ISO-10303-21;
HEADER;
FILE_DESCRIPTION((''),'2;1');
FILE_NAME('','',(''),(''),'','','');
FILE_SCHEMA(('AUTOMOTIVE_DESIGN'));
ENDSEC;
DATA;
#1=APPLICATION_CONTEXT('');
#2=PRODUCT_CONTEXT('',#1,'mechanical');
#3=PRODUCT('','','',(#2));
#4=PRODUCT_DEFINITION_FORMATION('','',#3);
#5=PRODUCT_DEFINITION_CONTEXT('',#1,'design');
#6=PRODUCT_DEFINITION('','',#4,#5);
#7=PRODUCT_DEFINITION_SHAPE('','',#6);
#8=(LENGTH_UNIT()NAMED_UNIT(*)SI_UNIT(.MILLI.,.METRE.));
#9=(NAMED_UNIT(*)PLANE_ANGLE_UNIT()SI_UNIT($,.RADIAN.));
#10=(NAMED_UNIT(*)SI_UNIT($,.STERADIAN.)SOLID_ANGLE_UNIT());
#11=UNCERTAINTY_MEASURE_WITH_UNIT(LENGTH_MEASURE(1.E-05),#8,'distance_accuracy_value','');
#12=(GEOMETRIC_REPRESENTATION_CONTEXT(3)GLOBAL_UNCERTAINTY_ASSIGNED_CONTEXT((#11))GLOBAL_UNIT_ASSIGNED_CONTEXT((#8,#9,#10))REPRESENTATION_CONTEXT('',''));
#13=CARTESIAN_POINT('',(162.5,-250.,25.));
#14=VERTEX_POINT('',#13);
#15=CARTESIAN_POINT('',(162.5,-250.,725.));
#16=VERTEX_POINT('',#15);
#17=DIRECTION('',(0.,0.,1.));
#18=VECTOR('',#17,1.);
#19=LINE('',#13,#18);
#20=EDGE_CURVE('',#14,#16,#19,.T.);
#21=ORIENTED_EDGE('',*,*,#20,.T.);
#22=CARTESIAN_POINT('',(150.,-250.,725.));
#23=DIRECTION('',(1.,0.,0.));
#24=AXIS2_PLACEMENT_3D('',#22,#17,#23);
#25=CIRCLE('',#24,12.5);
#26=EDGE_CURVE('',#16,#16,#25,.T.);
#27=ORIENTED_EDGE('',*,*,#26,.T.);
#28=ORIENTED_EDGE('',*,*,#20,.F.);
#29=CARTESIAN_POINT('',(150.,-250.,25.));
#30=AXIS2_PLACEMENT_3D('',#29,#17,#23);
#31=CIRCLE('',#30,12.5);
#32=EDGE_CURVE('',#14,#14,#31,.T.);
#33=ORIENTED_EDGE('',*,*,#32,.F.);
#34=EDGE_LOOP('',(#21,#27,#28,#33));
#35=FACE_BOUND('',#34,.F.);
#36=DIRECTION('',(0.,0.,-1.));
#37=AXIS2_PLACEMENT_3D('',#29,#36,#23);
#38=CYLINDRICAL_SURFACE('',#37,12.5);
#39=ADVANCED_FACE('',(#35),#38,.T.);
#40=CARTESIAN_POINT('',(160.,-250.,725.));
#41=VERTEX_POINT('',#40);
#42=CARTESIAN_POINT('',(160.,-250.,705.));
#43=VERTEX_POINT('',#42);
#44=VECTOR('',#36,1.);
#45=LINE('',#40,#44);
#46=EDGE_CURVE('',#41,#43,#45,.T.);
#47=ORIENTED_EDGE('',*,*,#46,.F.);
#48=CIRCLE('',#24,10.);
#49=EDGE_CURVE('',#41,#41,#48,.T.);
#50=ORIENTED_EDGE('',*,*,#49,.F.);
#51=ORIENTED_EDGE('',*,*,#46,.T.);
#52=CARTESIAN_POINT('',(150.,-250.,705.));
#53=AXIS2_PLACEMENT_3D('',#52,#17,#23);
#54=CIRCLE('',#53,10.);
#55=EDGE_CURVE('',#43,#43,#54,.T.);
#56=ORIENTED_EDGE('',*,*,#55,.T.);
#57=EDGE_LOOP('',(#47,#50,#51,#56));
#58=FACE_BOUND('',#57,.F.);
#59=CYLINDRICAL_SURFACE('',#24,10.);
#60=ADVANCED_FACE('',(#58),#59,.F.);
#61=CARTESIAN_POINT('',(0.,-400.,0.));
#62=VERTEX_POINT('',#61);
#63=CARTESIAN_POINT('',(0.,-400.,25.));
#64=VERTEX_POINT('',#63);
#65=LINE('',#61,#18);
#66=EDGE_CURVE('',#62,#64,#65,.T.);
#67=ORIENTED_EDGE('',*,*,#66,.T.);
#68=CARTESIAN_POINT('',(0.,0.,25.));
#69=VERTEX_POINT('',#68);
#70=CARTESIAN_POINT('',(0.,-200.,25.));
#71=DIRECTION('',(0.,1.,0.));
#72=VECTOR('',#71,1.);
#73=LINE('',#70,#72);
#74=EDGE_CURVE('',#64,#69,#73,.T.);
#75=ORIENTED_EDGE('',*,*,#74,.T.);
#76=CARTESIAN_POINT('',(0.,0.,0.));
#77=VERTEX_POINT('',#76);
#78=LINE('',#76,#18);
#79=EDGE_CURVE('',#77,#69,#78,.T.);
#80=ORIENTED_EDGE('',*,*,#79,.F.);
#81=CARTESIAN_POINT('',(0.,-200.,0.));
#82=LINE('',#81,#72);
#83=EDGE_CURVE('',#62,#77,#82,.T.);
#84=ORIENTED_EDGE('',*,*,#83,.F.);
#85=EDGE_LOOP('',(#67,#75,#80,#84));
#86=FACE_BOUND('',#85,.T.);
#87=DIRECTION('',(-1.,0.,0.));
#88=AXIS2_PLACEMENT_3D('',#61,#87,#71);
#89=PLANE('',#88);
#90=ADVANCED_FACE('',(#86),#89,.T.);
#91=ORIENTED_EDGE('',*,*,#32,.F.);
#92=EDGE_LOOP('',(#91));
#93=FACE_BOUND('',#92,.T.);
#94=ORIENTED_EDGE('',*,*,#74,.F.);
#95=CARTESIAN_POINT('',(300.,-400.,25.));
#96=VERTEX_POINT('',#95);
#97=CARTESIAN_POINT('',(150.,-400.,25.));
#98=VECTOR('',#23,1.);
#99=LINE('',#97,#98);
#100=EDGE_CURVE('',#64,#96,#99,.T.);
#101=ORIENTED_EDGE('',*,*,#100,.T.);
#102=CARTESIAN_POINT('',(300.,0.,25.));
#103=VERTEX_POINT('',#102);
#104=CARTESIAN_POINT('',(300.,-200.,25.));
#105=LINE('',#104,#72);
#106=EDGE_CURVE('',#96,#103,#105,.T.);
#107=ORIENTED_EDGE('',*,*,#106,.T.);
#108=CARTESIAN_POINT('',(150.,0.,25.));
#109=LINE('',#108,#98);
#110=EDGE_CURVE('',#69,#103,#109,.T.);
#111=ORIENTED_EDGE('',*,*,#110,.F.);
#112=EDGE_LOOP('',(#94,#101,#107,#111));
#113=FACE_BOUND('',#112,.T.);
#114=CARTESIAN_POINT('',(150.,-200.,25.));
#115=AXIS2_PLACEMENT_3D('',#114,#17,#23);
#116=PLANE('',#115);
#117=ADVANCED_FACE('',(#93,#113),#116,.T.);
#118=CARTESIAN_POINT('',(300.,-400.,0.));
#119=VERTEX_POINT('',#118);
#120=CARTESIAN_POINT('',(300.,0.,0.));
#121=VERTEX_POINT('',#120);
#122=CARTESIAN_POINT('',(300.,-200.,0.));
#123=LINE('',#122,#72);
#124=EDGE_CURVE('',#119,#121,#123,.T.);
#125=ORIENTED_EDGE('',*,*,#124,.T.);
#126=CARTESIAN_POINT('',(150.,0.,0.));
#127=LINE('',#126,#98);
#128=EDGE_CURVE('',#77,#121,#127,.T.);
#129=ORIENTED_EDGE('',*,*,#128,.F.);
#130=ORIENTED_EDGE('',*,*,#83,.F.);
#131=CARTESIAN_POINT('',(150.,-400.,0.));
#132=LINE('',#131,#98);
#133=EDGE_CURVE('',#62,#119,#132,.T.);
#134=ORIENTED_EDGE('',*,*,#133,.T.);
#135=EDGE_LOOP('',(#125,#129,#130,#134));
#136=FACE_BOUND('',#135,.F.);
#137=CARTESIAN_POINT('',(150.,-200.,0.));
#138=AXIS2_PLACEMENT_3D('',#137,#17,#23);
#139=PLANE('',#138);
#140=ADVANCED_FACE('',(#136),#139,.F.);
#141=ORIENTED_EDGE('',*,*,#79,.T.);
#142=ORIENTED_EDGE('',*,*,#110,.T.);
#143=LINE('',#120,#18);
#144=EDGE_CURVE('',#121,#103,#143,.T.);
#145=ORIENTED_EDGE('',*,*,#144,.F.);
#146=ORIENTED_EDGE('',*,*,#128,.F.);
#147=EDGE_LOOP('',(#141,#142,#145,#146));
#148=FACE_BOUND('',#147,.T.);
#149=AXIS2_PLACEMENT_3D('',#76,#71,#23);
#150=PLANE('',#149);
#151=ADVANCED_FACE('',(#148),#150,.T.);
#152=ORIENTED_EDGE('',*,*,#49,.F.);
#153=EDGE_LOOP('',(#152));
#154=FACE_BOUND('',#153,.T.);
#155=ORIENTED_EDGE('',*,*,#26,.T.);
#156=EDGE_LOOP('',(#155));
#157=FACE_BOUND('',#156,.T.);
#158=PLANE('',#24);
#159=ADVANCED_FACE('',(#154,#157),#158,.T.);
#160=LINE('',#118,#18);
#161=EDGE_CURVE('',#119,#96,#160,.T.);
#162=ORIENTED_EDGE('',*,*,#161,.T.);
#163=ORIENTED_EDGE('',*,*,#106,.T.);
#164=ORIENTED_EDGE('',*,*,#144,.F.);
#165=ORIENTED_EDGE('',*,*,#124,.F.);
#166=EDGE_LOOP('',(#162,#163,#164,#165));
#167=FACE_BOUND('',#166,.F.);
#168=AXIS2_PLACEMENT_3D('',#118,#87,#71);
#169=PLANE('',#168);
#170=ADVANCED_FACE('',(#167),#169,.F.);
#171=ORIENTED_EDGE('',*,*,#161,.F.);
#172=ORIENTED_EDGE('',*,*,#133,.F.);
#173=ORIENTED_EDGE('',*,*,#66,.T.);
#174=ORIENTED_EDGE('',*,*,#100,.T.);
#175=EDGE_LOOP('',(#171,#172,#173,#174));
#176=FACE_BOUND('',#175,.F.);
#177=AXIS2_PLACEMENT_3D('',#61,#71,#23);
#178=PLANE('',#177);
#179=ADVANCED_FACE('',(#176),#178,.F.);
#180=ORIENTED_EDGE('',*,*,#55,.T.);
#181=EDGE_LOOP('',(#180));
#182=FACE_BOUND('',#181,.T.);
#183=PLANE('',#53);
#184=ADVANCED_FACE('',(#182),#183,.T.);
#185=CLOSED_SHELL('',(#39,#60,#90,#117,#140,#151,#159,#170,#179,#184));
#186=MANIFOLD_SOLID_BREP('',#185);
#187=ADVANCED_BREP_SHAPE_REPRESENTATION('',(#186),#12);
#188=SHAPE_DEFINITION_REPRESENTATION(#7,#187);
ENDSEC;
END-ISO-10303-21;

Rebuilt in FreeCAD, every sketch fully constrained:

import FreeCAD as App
import Part
import Sketcher


def add_polygon(sketch, points):
    """Adds a closed chain of lines whose ends are joined by coincident constraints."""
    first, n = sketch.GeometryCount, len(points)
    for a, b in zip(points, points[1:] + points[:1]):
        sketch.addGeometry(Part.LineSegment(App.Vector(*a, 0), App.Vector(*b, 0)), False)
    for i in range(n):
        sketch.addConstraint(Sketcher.Constraint("Coincident", first + i, 2, first + (i + 1) % n, 1))

doc = App.newDocument("Part")
body = doc.addObject("PartDesign::Body", "Body")

# Sketch on XY plane
sketch1 = body.newObject("Sketcher::SketchObject", "Sketch")
sketch1.AttachmentSupport = (doc.getObject("XY_Plane"), [""])
sketch1.MapMode = "FlatFace"
add_polygon(sketch1, [(0, 0), (0, -400), (300, -400), (300, 0)])  # lines 0-3
sketch1.addConstraint(Sketcher.Constraint("Vertical", 0))
sketch1.addConstraint(Sketcher.Constraint("Horizontal", 1))
sketch1.addConstraint(Sketcher.Constraint("Vertical", 2))
sketch1.addConstraint(Sketcher.Constraint("Horizontal", 3))
sketch1.addConstraint(Sketcher.Constraint("Coincident", 3, 2, -1, 1))
sketch1.addConstraint(Sketcher.Constraint("DistanceX", 1, 1, 1, 2, 300.0))
sketch1.addConstraint(Sketcher.Constraint("DistanceY", 0, 2, 0, 1, 400.0))
pad1 = body.newObject("PartDesign::Pad", "Pad")
pad1.Profile = sketch1
pad1.Length = 25

# Sketch on XY plane
sketch2 = body.newObject("Sketcher::SketchObject", "Sketch001")
sketch2.AttachmentSupport = (doc.getObject("XY_Plane"), [""])
sketch2.MapMode = "FlatFace"
sketch2.AttachmentOffset = App.Placement(App.Vector(0, 0, 25), App.Rotation())
sketch2.addGeometry(Part.Circle(App.Vector(150, -250, 0), App.Vector(0, 0, 1), 12), False)
sketch2.addConstraint(Sketcher.Constraint("Diameter", 0, 25.0))
sketch2.addConstraint(Sketcher.Constraint("DistanceX", -1, 1, 0, 3, 150.0))
sketch2.addConstraint(Sketcher.Constraint("DistanceY", 0, 3, -1, 1, 250.0))
pad2 = body.newObject("PartDesign::Pad", "Pad001")
pad2.Profile = sketch2
pad2.Length = 700

# Sketch on XY plane
sketch3 = body.newObject("Sketcher::SketchObject", "Sketch002")
sketch3.AttachmentSupport = (doc.getObject("XY_Plane"), [""])
sketch3.MapMode = "FlatFace"
sketch3.AttachmentOffset = App.Placement(App.Vector(0, 0, 725), App.Rotation())
sketch3.addGeometry(Part.Circle(App.Vector(150, -250, 0), App.Vector(0, 0, 1), 10), False)
sketch3.addConstraint(Sketcher.Constraint("Diameter", 0, 20.0))
sketch3.addConstraint(Sketcher.Constraint("DistanceX", -1, 1, 0, 3, 150.0))
sketch3.addConstraint(Sketcher.Constraint("DistanceY", 0, 3, -1, 1, 250.0))
pocket1 = body.newObject("PartDesign::Pocket", "Pocket")
pocket1.Profile = sketch3
pocket1.Length = 20

doc.recompute()
